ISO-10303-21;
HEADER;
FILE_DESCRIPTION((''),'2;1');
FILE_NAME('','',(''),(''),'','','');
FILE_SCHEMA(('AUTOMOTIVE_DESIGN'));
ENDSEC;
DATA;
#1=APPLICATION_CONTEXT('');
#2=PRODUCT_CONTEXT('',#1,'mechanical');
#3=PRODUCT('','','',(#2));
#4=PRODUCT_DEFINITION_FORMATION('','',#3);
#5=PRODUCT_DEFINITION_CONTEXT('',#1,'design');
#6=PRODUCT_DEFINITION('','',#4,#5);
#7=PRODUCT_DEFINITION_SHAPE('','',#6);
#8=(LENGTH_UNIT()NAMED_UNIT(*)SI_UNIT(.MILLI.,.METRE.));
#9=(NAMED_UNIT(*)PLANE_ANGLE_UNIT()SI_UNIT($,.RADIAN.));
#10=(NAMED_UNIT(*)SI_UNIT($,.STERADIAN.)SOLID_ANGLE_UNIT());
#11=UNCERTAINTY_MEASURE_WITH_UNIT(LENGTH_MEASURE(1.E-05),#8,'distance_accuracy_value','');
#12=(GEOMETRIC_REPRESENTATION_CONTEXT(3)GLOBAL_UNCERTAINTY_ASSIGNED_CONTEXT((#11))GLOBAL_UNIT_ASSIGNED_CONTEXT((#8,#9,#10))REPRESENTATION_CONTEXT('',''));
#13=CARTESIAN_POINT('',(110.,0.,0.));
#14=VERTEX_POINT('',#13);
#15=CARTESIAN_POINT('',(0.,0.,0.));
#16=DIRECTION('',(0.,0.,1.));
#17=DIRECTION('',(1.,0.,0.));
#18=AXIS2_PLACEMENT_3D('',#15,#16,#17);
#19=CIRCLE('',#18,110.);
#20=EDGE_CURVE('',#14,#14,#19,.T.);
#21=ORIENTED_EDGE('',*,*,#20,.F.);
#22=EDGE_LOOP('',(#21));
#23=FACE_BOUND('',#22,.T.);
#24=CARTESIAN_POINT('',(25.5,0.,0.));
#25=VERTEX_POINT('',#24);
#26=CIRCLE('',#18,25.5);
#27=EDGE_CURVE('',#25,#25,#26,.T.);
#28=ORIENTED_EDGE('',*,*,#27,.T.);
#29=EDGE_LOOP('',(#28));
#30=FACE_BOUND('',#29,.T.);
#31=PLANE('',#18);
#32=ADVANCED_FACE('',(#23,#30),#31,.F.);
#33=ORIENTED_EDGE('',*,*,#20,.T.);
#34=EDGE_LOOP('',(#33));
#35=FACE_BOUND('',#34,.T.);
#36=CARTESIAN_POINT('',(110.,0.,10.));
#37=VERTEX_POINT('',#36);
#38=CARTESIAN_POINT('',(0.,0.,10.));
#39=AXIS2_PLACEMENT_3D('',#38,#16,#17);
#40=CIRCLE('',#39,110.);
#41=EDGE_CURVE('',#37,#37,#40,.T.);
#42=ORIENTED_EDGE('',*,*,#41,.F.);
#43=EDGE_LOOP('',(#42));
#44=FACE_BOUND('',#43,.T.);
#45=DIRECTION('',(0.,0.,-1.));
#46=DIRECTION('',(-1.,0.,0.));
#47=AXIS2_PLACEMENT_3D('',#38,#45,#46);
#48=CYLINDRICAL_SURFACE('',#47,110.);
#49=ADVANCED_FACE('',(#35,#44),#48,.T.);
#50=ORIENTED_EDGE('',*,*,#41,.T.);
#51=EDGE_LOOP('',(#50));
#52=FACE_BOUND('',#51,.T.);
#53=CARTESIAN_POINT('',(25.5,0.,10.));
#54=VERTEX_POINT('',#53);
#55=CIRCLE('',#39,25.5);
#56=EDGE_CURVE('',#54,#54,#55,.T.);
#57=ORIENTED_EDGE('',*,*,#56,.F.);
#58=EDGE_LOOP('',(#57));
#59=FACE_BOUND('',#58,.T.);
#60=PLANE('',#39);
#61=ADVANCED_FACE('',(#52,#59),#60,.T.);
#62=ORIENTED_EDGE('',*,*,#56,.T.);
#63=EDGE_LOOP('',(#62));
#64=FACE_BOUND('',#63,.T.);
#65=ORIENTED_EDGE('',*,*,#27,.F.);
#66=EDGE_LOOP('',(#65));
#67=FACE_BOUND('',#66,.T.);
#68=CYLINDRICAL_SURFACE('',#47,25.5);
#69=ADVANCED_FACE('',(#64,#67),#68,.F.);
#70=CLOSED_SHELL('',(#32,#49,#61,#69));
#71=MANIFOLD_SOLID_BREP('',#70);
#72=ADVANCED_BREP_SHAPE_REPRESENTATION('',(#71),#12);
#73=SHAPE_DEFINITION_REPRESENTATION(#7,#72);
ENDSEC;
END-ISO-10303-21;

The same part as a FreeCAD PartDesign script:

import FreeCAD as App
import Part
import Sketcher

V = App.Vector

doc = App.newDocument("Part")
body = doc.addObject("PartDesign::Body", "Body")

# Sketch on XY plane
sketch1 = body.newObject("Sketcher::SketchObject", "Sketch")
sketch1.AttachmentSupport = (doc.getObject("XY_Plane"), [""])
sketch1.MapMode = "FlatFace"
sketch1.addGeometry([
    Part.Circle(V(0, 0, 0), V(0, 0, 1), 110),
    Part.Circle(V(0, 0, 0), V(0, 0, 1), 26),
], False)
sketch1.addConstraint([
    Sketcher.Constraint("Coincident", 0, 3, -1, 1),
    Sketcher.Constraint("Coincident", 1, 3, -1, 1),
    Sketcher.Constraint("Diameter", 0, 220.0),
    Sketcher.Constraint("Diameter", 1, 51.0),
])
pad1 = body.newObject("PartDesign::Pad", "Pad")
pad1.Profile = sketch1
pad1.Length = 10

doc.recompute()
